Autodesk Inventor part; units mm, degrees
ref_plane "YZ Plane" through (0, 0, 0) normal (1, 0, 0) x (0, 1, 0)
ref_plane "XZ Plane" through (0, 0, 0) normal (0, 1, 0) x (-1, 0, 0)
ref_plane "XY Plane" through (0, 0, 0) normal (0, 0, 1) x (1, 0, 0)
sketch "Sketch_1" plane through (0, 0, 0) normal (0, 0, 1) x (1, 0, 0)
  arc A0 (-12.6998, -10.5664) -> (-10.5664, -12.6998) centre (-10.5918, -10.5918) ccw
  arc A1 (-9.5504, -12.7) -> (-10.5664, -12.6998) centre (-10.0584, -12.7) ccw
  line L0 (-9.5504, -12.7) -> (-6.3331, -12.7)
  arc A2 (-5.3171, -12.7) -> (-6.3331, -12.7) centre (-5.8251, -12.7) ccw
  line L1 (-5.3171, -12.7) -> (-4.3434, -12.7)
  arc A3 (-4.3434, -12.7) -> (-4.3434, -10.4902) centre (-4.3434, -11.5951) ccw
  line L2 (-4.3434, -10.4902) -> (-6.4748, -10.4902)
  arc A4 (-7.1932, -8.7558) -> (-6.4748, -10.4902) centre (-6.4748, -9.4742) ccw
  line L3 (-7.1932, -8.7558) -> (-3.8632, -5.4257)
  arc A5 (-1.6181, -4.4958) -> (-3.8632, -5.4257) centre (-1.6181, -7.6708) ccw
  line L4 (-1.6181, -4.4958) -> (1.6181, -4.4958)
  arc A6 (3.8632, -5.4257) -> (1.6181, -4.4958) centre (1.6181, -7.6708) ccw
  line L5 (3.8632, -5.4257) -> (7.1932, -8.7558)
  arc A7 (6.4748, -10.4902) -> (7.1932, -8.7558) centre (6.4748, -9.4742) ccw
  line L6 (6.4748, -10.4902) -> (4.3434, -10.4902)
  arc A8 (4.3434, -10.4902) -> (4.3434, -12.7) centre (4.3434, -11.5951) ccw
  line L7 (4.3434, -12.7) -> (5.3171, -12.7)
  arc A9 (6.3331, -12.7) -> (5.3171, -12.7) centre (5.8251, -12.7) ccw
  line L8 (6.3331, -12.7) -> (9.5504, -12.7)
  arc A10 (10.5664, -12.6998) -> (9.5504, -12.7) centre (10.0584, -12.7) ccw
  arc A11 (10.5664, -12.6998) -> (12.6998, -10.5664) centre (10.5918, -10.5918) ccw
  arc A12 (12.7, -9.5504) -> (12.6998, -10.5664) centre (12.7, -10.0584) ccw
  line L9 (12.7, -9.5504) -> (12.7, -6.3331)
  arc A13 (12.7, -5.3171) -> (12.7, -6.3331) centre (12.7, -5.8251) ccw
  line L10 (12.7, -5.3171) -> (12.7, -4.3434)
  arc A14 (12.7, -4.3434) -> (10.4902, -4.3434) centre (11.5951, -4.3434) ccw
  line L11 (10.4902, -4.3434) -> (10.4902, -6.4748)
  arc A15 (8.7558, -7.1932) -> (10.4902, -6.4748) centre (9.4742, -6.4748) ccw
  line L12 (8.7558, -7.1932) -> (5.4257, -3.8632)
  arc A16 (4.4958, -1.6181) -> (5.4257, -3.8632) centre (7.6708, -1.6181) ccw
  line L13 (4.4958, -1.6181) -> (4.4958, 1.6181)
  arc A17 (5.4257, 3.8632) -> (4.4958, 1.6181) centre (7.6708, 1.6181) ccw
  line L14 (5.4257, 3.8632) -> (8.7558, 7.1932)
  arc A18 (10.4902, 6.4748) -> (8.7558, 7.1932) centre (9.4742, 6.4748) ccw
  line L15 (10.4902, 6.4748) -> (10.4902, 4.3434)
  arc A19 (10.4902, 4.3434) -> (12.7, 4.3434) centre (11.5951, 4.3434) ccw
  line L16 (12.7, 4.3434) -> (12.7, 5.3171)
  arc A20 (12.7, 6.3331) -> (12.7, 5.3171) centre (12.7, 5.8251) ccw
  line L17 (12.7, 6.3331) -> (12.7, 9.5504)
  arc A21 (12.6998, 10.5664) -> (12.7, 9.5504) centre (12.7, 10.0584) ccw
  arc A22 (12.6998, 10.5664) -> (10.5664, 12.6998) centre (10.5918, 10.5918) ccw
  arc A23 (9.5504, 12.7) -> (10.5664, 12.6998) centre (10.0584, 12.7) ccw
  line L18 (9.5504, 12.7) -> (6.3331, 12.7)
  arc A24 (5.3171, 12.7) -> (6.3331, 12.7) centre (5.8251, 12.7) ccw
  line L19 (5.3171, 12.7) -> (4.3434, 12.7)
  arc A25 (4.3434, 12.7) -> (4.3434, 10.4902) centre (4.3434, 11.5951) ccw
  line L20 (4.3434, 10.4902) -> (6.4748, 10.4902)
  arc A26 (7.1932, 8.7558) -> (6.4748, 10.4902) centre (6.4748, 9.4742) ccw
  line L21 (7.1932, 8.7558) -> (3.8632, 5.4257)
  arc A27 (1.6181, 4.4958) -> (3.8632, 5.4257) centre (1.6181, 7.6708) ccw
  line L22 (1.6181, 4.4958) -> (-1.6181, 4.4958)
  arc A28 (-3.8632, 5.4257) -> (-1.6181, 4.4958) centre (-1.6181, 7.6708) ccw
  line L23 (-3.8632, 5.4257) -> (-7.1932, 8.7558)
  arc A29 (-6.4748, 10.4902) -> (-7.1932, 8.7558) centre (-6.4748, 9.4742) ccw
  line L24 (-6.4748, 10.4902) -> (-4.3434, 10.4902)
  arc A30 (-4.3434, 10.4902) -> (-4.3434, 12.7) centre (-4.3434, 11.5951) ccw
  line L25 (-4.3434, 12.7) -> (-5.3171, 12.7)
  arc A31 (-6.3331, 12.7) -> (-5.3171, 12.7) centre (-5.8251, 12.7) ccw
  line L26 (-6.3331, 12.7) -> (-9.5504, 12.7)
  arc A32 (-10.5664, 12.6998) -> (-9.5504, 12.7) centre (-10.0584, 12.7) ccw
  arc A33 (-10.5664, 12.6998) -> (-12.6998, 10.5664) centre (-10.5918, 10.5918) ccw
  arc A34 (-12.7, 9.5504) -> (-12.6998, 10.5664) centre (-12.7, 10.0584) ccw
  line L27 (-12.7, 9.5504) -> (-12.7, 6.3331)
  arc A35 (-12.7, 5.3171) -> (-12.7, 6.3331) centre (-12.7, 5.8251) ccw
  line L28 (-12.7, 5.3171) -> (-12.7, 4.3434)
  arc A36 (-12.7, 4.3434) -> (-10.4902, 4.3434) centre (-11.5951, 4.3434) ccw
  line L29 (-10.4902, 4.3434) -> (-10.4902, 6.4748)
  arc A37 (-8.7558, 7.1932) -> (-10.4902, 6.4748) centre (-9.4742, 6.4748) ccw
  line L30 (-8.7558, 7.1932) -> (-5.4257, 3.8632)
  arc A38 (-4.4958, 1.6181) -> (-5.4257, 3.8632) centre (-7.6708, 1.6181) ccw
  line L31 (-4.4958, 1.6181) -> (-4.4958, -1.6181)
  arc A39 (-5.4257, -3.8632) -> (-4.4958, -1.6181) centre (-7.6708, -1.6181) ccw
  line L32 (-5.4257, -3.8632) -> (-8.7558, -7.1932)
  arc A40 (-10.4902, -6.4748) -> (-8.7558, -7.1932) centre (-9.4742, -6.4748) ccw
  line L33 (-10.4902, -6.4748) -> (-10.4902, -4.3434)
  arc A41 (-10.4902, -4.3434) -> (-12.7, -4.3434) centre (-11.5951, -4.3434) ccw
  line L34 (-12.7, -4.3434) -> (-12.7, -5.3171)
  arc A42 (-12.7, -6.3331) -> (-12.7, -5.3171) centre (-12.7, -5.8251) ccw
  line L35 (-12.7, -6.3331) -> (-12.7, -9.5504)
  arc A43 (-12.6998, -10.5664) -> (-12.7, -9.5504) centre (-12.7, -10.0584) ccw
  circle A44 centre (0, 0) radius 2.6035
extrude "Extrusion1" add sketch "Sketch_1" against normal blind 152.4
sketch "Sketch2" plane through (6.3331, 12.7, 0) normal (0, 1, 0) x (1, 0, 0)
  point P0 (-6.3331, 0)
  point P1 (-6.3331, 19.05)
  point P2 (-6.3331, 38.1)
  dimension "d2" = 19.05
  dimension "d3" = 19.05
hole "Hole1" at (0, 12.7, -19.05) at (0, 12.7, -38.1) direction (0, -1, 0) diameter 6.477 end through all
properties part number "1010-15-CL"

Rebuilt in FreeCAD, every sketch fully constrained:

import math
import FreeCAD as App
import Part
import Sketcher
from FreeCAD import Vector
Q = App.Units.Quantity

doc = App.newDocument("Part")
body = doc.addObject("PartDesign::Body", "Body")

sketch1 = body.newObject("Sketcher::SketchObject", "Sketch")
sketch1.AttachmentSupport = (doc.getObject("XY_Plane"), [""])
sketch1.MapMode = "FlatFace"
sketch1.addGeometry(Part.ArcOfCircle(Part.Circle(Vector(-12.7, -10.1, 0), Vector(0, 0, 1), 0.5), math.radians(-90), math.radians(90)), False)
sketch1.addGeometry(Part.ArcOfCircle(Part.Circle(Vector(-10.6, -10.6, 0), Vector(0, 0, 1), 2.1), math.radians(179), math.radians(271)), False)
sketch1.addGeometry(Part.ArcOfCircle(Part.Circle(Vector(-10.1, -12.7, 0), Vector(0, 0, 1), 0.5), math.radians(0), math.radians(180)), False)
sketch1.addGeometry(Part.LineSegment(Vector(-9.6, -12.7, 0), Vector(-6.3, -12.7, 0)), False)
sketch1.addGeometry(Part.ArcOfCircle(Part.Circle(Vector(-5.8, -12.7, 0), Vector(0, 0, 1), 0.5), math.radians(0), math.radians(180)), False)
sketch1.addGeometry(Part.LineSegment(Vector(-5.3, -12.7, 0), Vector(-4.3, -12.7, 0)), False)
sketch1.addGeometry(Part.ArcOfCircle(Part.Circle(Vector(-4.3, -11.6, 0), Vector(0, 0, 1), 1.1), math.radians(-90), math.radians(90)), False)
sketch1.addGeometry(Part.LineSegment(Vector(-4.3, -10.5, 0), Vector(-6.5, -10.5, 0)), False)
sketch1.addGeometry(Part.ArcOfCircle(Part.Circle(Vector(-6.5, -9.5, 0), Vector(0, 0, 1), 1), math.radians(135), math.radians(270)), False)
sketch1.addGeometry(Part.LineSegment(Vector(-7.2, -8.8, 0), Vector(-3.9, -5.4, 0)), False)
sketch1.addGeometry(Part.ArcOfCircle(Part.Circle(Vector(-1.6, -7.7, 0), Vector(0, 0, 1), 3.2), math.radians(90), math.radians(135)), False)
sketch1.addGeometry(Part.LineSegment(Vector(-1.6, -4.5, 0), Vector(1.6, -4.5, 0)), False)
sketch1.addGeometry(Part.ArcOfCircle(Part.Circle(Vector(1.6, -7.7, 0), Vector(0, 0, 1), 3.2), math.radians(45), math.radians(90)), False)
sketch1.addGeometry(Part.LineSegment(Vector(3.9, -5.4, 0), Vector(7.2, -8.8, 0)), False)
sketch1.addGeometry(Part.ArcOfCircle(Part.Circle(Vector(6.5, -9.5, 0), Vector(0, 0, 1), 1), math.radians(-90), math.radians(45)), False)
sketch1.addGeometry(Part.LineSegment(Vector(6.5, -10.5, 0), Vector(4.3, -10.5, 0)), False)
sketch1.addGeometry(Part.ArcOfCircle(Part.Circle(Vector(4.3, -11.6, 0), Vector(0, 0, 1), 1.1), math.radians(90), math.radians(270)), False)
sketch1.addGeometry(Part.LineSegment(Vector(4.3, -12.7, 0), Vector(5.3, -12.7, 0)), False)
sketch1.addGeometry(Part.ArcOfCircle(Part.Circle(Vector(5.8, -12.7, 0), Vector(0, 0, 1), 0.5), math.radians(0), math.radians(180)), False)
sketch1.addGeometry(Part.LineSegment(Vector(6.3, -12.7, 0), Vector(9.6, -12.7, 0)), False)
sketch1.addGeometry(Part.ArcOfCircle(Part.Circle(Vector(10.1, -12.7, 0), Vector(0, 0, 1), 0.5), math.radians(0), math.radians(180)), False)
sketch1.addGeometry(Part.ArcOfCircle(Part.Circle(Vector(10.6, -10.6, 0), Vector(0, 0, 1), 2.1), math.radians(-91), math.radians(1)), False)
sketch1.addGeometry(Part.ArcOfCircle(Part.Circle(Vector(12.7, -10.1, 0), Vector(0, 0, 1), 0.5), math.radians(90), math.radians(270)), False)
sketch1.addGeometry(Part.LineSegment(Vector(12.7, -9.6, 0), Vector(12.7, -6.3, 0)), False)
sketch1.addGeometry(Part.ArcOfCircle(Part.Circle(Vector(12.7, -5.8, 0), Vector(0, 0, 1), 0.5), math.radians(90), math.radians(270)), False)
sketch1.addGeometry(Part.LineSegment(Vector(12.7, -5.3, 0), Vector(12.7, -4.3, 0)), False)
sketch1.addGeometry(Part.ArcOfCircle(Part.Circle(Vector(11.6, -4.3, 0), Vector(0, 0, 1), 1.1), math.radians(0), math.radians(180)), False)
sketch1.addGeometry(Part.LineSegment(Vector(10.5, -4.3, 0), Vector(10.5, -6.5, 0)), False)
sketch1.addGeometry(Part.ArcOfCircle(Part.Circle(Vector(9.5, -6.5, 0), Vector(0, 0, 1), 1), math.radians(-135), math.radians(0)), False)
sketch1.addGeometry(Part.LineSegment(Vector(8.8, -7.2, 0), Vector(5.4, -3.9, 0)), False)
sketch1.addGeometry(Part.ArcOfCircle(Part.Circle(Vector(7.7, -1.6, 0), Vector(0, 0, 1), 3.2), math.radians(180), math.radians(225)), False)
sketch1.addGeometry(Part.LineSegment(Vector(4.5, -1.6, 0), Vector(4.5, 1.6, 0)), False)
sketch1.addGeometry(Part.ArcOfCircle(Part.Circle(Vector(7.7, 1.6, 0), Vector(0, 0, 1), 3.2), math.radians(135), math.radians(180)), False)
sketch1.addGeometry(Part.LineSegment(Vector(5.4, 3.9, 0), Vector(8.8, 7.2, 0)), False)
sketch1.addGeometry(Part.ArcOfCircle(Part.Circle(Vector(9.5, 6.5, 0), Vector(0, 0, 1), 1), math.radians(0), math.radians(135)), False)
sketch1.addGeometry(Part.LineSegment(Vector(10.5, 6.5, 0), Vector(10.5, 4.3, 0)), False)
sketch1.addGeometry(Part.ArcOfCircle(Part.Circle(Vector(11.6, 4.3, 0), Vector(0, 0, 1), 1.1), math.radians(180), math.radians(360)), False)
sketch1.addGeometry(Part.LineSegment(Vector(12.7, 4.3, 0), Vector(12.7, 5.3, 0)), False)
sketch1.addGeometry(Part.ArcOfCircle(Part.Circle(Vector(12.7, 5.8, 0), Vector(0, 0, 1), 0.5), math.radians(90), math.radians(270)), False)
sketch1.addGeometry(Part.LineSegment(Vector(12.7, 6.3, 0), Vector(12.7, 9.6, 0)), False)
sketch1.addGeometry(Part.ArcOfCircle(Part.Circle(Vector(12.7, 10.1, 0), Vector(0, 0, 1), 0.5), math.radians(90), math.radians(270)), False)
sketch1.addGeometry(Part.ArcOfCircle(Part.Circle(Vector(10.6, 10.6, 0), Vector(0, 0, 1), 2.1), math.radians(-1), math.radians(91)), False)
sketch1.addGeometry(Part.ArcOfCircle(Part.Circle(Vector(10.1, 12.7, 0), Vector(0, 0, 1), 0.5), math.radians(180), math.radians(360)), False)
sketch1.addGeometry(Part.LineSegment(Vector(9.6, 12.7, 0), Vector(6.3, 12.7, 0)), False)
sketch1.addGeometry(Part.ArcOfCircle(Part.Circle(Vector(5.8, 12.7, 0), Vector(0, 0, 1), 0.5), math.radians(180), math.radians(360)), False)
sketch1.addGeometry(Part.LineSegment(Vector(5.3, 12.7, 0), Vector(4.3, 12.7, 0)), False)
sketch1.addGeometry(Part.ArcOfCircle(Part.Circle(Vector(4.3, 11.6, 0), Vector(0, 0, 1), 1.1), math.radians(90), math.radians(270)), False)
sketch1.addGeometry(Part.LineSegment(Vector(4.3, 10.5, 0), Vector(6.5, 10.5, 0)), False)
sketch1.addGeometry(Part.ArcOfCircle(Part.Circle(Vector(6.5, 9.5, 0), Vector(0, 0, 1), 1), math.radians(-45), math.radians(90)), False)
sketch1.addGeometry(Part.LineSegment(Vector(7.2, 8.8, 0), Vector(3.9, 5.4, 0)), False)
sketch1.addGeometry(Part.ArcOfCircle(Part.Circle(Vector(1.6, 7.7, 0), Vector(0, 0, 1), 3.2), math.radians(-90), math.radians(-45)), False)
sketch1.addGeometry(Part.LineSegment(Vector(1.6, 4.5, 0), Vector(-1.6, 4.5, 0)), False)
sketch1.addGeometry(Part.ArcOfCircle(Part.Circle(Vector(-1.6, 7.7, 0), Vector(0, 0, 1), 3.2), math.radians(-135), math.radians(-90)), False)
sketch1.addGeometry(Part.LineSegment(Vector(-3.9, 5.4, 0), Vector(-7.2, 8.8, 0)), False)
sketch1.addGeometry(Part.ArcOfCircle(Part.Circle(Vector(-6.5, 9.5, 0), Vector(0, 0, 1), 1), math.radians(90), math.radians(225)), False)
sketch1.addGeometry(Part.LineSegment(Vector(-6.5, 10.5, 0), Vector(-4.3, 10.5, 0)), False)
sketch1.addGeometry(Part.ArcOfCircle(Part.Circle(Vector(-4.3, 11.6, 0), Vector(0, 0, 1), 1.1), math.radians(-90), math.radians(90)), False)
sketch1.addGeometry(Part.LineSegment(Vector(-4.3, 12.7, 0), Vector(-5.3, 12.7, 0)), False)
sketch1.addGeometry(Part.ArcOfCircle(Part.Circle(Vector(-5.8, 12.7, 0), Vector(0, 0, 1), 0.5), math.radians(180), math.radians(360)), False)
sketch1.addGeometry(Part.LineSegment(Vector(-6.3, 12.7, 0), Vector(-9.6, 12.7, 0)), False)
sketch1.addGeometry(Part.ArcOfCircle(Part.Circle(Vector(-10.1, 12.7, 0), Vector(0, 0, 1), 0.5), math.radians(-180), math.radians(0)), False)
sketch1.addGeometry(Part.ArcOfCircle(Part.Circle(Vector(-10.6, 10.6, 0), Vector(0, 0, 1), 2.1), math.radians(89), math.radians(181)), False)
sketch1.addGeometry(Part.ArcOfCircle(Part.Circle(Vector(-12.7, 10.1, 0), Vector(0, 0, 1), 0.5), math.radians(-90), math.radians(90)), False)
sketch1.addGeometry(Part.LineSegment(Vector(-12.7, 9.6, 0), Vector(-12.7, 6.3, 0)), False)
sketch1.addGeometry(Part.ArcOfCircle(Part.Circle(Vector(-12.7, 5.8, 0), Vector(0, 0, 1), 0.5), math.radians(-90), math.radians(90)), False)
sketch1.addGeometry(Part.LineSegment(Vector(-12.7, 5.3, 0), Vector(-12.7, 4.3, 0)), False)
sketch1.addGeometry(Part.ArcOfCircle(Part.Circle(Vector(-11.6, 4.3, 0), Vector(0, 0, 1), 1.1), math.radians(180), math.radians(360)), False)
sketch1.addGeometry(Part.LineSegment(Vector(-10.5, 4.3, 0), Vector(-10.5, 6.5, 0)), False)
sketch1.addGeometry(Part.ArcOfCircle(Part.Circle(Vector(-9.5, 6.5, 0), Vector(0, 0, 1), 1), math.radians(45), math.radians(180)), False)
sketch1.addGeometry(Part.LineSegment(Vector(-8.8, 7.2, 0), Vector(-5.4, 3.9, 0)), False)
sketch1.addGeometry(Part.ArcOfCircle(Part.Circle(Vector(-7.7, 1.6, 0), Vector(0, 0, 1), 3.2), math.radians(0), math.radians(45)), False)
sketch1.addGeometry(Part.LineSegment(Vector(-4.5, 1.6, 0), Vector(-4.5, -1.6, 0)), False)
sketch1.addGeometry(Part.ArcOfCircle(Part.Circle(Vector(-7.7, -1.6, 0), Vector(0, 0, 1), 3.2), math.radians(-45), math.radians(0)), False)
sketch1.addGeometry(Part.LineSegment(Vector(-5.4, -3.9, 0), Vector(-8.8, -7.2, 0)), False)
sketch1.addGeometry(Part.ArcOfCircle(Part.Circle(Vector(-9.5, -6.5, 0), Vector(0, 0, 1), 1), math.radians(180), math.radians(315)), False)
sketch1.addGeometry(Part.LineSegment(Vector(-10.5, -6.5, 0), Vector(-10.5, -4.3, 0)), False)
sketch1.addGeometry(Part.ArcOfCircle(Part.Circle(Vector(-11.6, -4.3, 0), Vector(0, 0, 1), 1.1), math.radians(0), math.radians(180)), False)
sketch1.addGeometry(Part.LineSegment(Vector(-12.7, -4.3, 0), Vector(-12.7, -5.3, 0)), False)
sketch1.addGeometry(Part.ArcOfCircle(Part.Circle(Vector(-12.7, -5.8, 0), Vector(0, 0, 1), 0.5), math.radians(-90), math.radians(90)), False)
sketch1.addGeometry(Part.LineSegment(Vector(-12.7, -6.3, 0), Vector(-12.7, -9.6, 0)), False)
sketch1.addGeometry(Part.Circle(Vector(0, 0, 0), Vector(0, 0, 1), 2.6), False)
sketch1.addConstraint(Sketcher.Constraint("Coincident", 0, 1, 1, 1))
sketch1.addConstraint(Sketcher.Constraint("Coincident", 1, 2, 2, 2))
sketch1.addConstraint(Sketcher.Constraint("Coincident", 2, 1, 3, 1))
sketch1.addConstraint(Sketcher.Constraint("Coincident", 3, 2, 4, 2))
sketch1.addConstraint(Sketcher.Constraint("Coincident", 4, 1, 5, 1))
sketch1.addConstraint(Sketcher.Constraint("Tangent", 5, 2, 6, 1))
sketch1.addConstraint(Sketcher.Constraint("Tangent", 6, 2, 7, 1))
sketch1.addConstraint(Sketcher.Constraint("Tangent", 7, 2, 8, 2))
sketch1.addConstraint(Sketcher.Constraint("Tangent", 8, 1, 9, 1))
sketch1.addConstraint(Sketcher.Constraint("Tangent", 9, 2, 10, 2))
sketch1.addConstraint(Sketcher.Constraint("Tangent", 10, 1, 11, 1))
sketch1.addConstraint(Sketcher.Constraint("Tangent", 11, 2, 12, 2))
sketch1.addConstraint(Sketcher.Constraint("Tangent", 12, 1, 13, 1))
sketch1.addConstraint(Sketcher.Constraint("Tangent", 13, 2, 14, 2))
sketch1.addConstraint(Sketcher.Constraint("Tangent", 14, 1, 15, 1))
sketch1.addConstraint(Sketcher.Constraint("Tangent", 15, 2, 16, 1))
sketch1.addConstraint(Sketcher.Constraint("Tangent", 16, 2, 17, 1))
sketch1.addConstraint(Sketcher.Constraint("Coincident", 17, 2, 18, 2))
sketch1.addConstraint(Sketcher.Constraint("Coincident", 18, 1, 19, 1))
sketch1.addConstraint(Sketcher.Constraint("Coincident", 19, 2, 20, 2))
sketch1.addConstraint(Sketcher.Constraint("Coincident", 20, 1, 21, 1))
sketch1.addConstraint(Sketcher.Constraint("Coincident", 21, 2, 22, 2))
sketch1.addConstraint(Sketcher.Constraint("Coincident", 22, 1, 23, 1))
sketch1.addConstraint(Sketcher.Constraint("Coincident", 23, 2, 24, 2))
sketch1.addConstraint(Sketcher.Constraint("Coincident", 24, 1, 25, 1))
sketch1.addConstraint(Sketcher.Constraint("Tangent", 25, 2, 26, 1))
sketch1.addConstraint(Sketcher.Constraint("Tangent", 26, 2, 27, 1))
sketch1.addConstraint(Sketcher.Constraint("Tangent", 27, 2, 28, 2))
sketch1.addConstraint(Sketcher.Constraint("Tangent", 28, 1, 29, 1))
sketch1.addConstraint(Sketcher.Constraint("Tangent", 29, 2, 30, 2))
sketch1.addConstraint(Sketcher.Constraint("Tangent", 30, 1, 31, 1))
sketch1.addConstraint(Sketcher.Constraint("Tangent", 31, 2, 32, 2))
sketch1.addConstraint(Sketcher.Constraint("Tangent", 32, 1, 33, 1))
sketch1.addConstraint(Sketcher.Constraint("Tangent", 33, 2, 34, 2))
sketch1.addConstraint(Sketcher.Constraint("Tangent", 34, 1, 35, 1))
sketch1.addConstraint(Sketcher.Constraint("Tangent", 35, 2, 36, 1))
sketch1.addConstraint(Sketcher.Constraint("Tangent", 36, 2, 37, 1))
sketch1.addConstraint(Sketcher.Constraint("Coincident", 37, 2, 38, 2))
sketch1.addConstraint(Sketcher.Constraint("Coincident", 38, 1, 39, 1))
sketch1.addConstraint(Sketcher.Constraint("Coincident", 39, 2, 40, 2))
sketch1.addConstraint(Sketcher.Constraint("Coincident", 40, 1, 41, 1))
sketch1.addConstraint(Sketcher.Constraint("Coincident", 41, 2, 42, 2))
sketch1.addConstraint(Sketcher.Constraint("Coincident", 42, 1, 43, 1))
sketch1.addConstraint(Sketcher.Constraint("Coincident", 43, 2, 44, 2))
sketch1.addConstraint(Sketcher.Constraint("Coincident", 44, 1, 45, 1))
sketch1.addConstraint(Sketcher.Constraint("Tangent", 45, 2, 46, 1))
sketch1.addConstraint(Sketcher.Constraint("Tangent", 46, 2, 47, 1))
sketch1.addConstraint(Sketcher.Constraint("Tangent", 47, 2, 48, 2))
sketch1.addConstraint(Sketcher.Constraint("Tangent", 48, 1, 49, 1))
sketch1.addConstraint(Sketcher.Constraint("Tangent", 49, 2, 50, 2))
sketch1.addConstraint(Sketcher.Constraint("Tangent", 50, 1, 51, 1))
sketch1.addConstraint(Sketcher.Constraint("Tangent", 51, 2, 52, 2))
sketch1.addConstraint(Sketcher.Constraint("Tangent", 52, 1, 53, 1))
sketch1.addConstraint(Sketcher.Constraint("Tangent", 53, 2, 54, 2))
sketch1.addConstraint(Sketcher.Constraint("Tangent", 54, 1, 55, 1))
sketch1.addConstraint(Sketcher.Constraint("Tangent", 55, 2, 56, 1))
sketch1.addConstraint(Sketcher.Constraint("Tangent", 56, 2, 57, 1))
sketch1.addConstraint(Sketcher.Constraint("Coincident", 57, 2, 58, 2))
sketch1.addConstraint(Sketcher.Constraint("Coincident", 58, 1, 59, 1))
sketch1.addConstraint(Sketcher.Constraint("Coincident", 59, 2, 60, 2))
sketch1.addConstraint(Sketcher.Constraint("Coincident", 60, 1, 61, 1))
sketch1.addConstraint(Sketcher.Constraint("Coincident", 61, 2, 62, 2))
sketch1.addConstraint(Sketcher.Constraint("Coincident", 62, 1, 63, 1))
sketch1.addConstraint(Sketcher.Constraint("Coincident", 63, 2, 64, 2))
sketch1.addConstraint(Sketcher.Constraint("Coincident", 64, 1, 65, 1))
sketch1.addConstraint(Sketcher.Constraint("Tangent", 65, 2, 66, 1))
sketch1.addConstraint(Sketcher.Constraint("Tangent", 66, 2, 67, 1))
sketch1.addConstraint(Sketcher.Constraint("Tangent", 67, 2, 68, 2))
sketch1.addConstraint(Sketcher.Constraint("Tangent", 68, 1, 69, 1))
sketch1.addConstraint(Sketcher.Constraint("Tangent", 69, 2, 70, 2))
sketch1.addConstraint(Sketcher.Constraint("Tangent", 70, 1, 71, 1))
sketch1.addConstraint(Sketcher.Constraint("Tangent", 71, 2, 72, 2))
sketch1.addConstraint(Sketcher.Constraint("Tangent", 72, 1, 73, 1))
sketch1.addConstraint(Sketcher.Constraint("Tangent", 73, 2, 74, 2))
sketch1.addConstraint(Sketcher.Constraint("Tangent", 74, 1, 75, 1))
sketch1.addConstraint(Sketcher.Constraint("Tangent", 75, 2, 76, 1))
sketch1.addConstraint(Sketcher.Constraint("Tangent", 76, 2, 77, 1))
sketch1.addConstraint(Sketcher.Constraint("Coincident", 77, 2, 78, 2))
sketch1.addConstraint(Sketcher.Constraint("Coincident", 78, 1, 79, 1))
sketch1.addConstraint(Sketcher.Constraint("Coincident", 79, 2, 0, 2))
sketch1.addConstraint(Sketcher.Constraint("Horizontal", 3))
sketch1.addConstraint(Sketcher.Constraint("Horizontal", 5))
sketch1.addConstraint(Sketcher.Constraint("Horizontal", 7))
sketch1.addConstraint(Sketcher.Constraint("Horizontal", 11))
sketch1.addConstraint(Sketcher.Constraint("Horizontal", 15))
sketch1.addConstraint(Sketcher.Constraint("Horizontal", 17))
sketch1.addConstraint(Sketcher.Constraint("Horizontal", 19))
sketch1.addConstraint(Sketcher.Constraint("Vertical", 23))
sketch1.addConstraint(Sketcher.Constraint("Vertical", 25))
sketch1.addConstraint(Sketcher.Constraint("Vertical", 27))
sketch1.addConstraint(Sketcher.Constraint("Vertical", 31))
sketch1.addConstraint(Sketcher.Constraint("Vertical", 35))
sketch1.addConstraint(Sketcher.Constraint("Vertical", 37))
sketch1.addConstraint(Sketcher.Constraint("Vertical", 39))
sketch1.addConstraint(Sketcher.Constraint("Horizontal", 43))
sketch1.addConstraint(Sketcher.Constraint("Horizontal", 45))
sketch1.addConstraint(Sketcher.Constraint("Horizontal", 47))
sketch1.addConstraint(Sketcher.Constraint("Horizontal", 51))
sketch1.addConstraint(Sketcher.Constraint("Horizontal", 55))
sketch1.addConstraint(Sketcher.Constraint("Horizontal", 57))
sketch1.addConstraint(Sketcher.Constraint("Horizontal", 59))
sketch1.addConstraint(Sketcher.Constraint("Vertical", 63))
sketch1.addConstraint(Sketcher.Constraint("Vertical", 65))
sketch1.addConstraint(Sketcher.Constraint("Vertical", 67))
sketch1.addConstraint(Sketcher.Constraint("Vertical", 71))
sketch1.addConstraint(Sketcher.Constraint("Vertical", 75))
sketch1.addConstraint(Sketcher.Constraint("Vertical", 77))
sketch1.addConstraint(Sketcher.Constraint("Vertical", 79))
sketch1.addConstraint(Sketcher.Constraint("Coincident", 80, 3, -1, 1))
sketch1.addConstraint(Sketcher.Constraint("Equal", 0, 2))
sketch1.addConstraint(Sketcher.Constraint("Equal", 2, 4))
sketch1.addConstraint(Sketcher.Constraint("Equal", 10, 12))
sketch1.addConstraint(Sketcher.Constraint("Equal", 8, 14))
sketch1.addConstraint(Sketcher.Constraint("Equal", 6, 16))
sketch1.addConstraint(Sketcher.Constraint("Equal", 4, 18))
sketch1.addConstraint(Sketcher.Constraint("Equal", 18, 20))
sketch1.addConstraint(Sketcher.Constraint("Equal", 1, 21))
sketch1.addConstraint(Sketcher.Constraint("Equal", 20, 22))
sketch1.addConstraint(Sketcher.Constraint("Equal", 22, 24))
sketch1.addConstraint(Sketcher.Constraint("Equal", 16, 26))
sketch1.addConstraint(Sketcher.Constraint("Equal", 14, 28))
sketch1.addConstraint(Sketcher.Constraint("Equal", 12, 30))
sketch1.addConstraint(Sketcher.Constraint("Equal", 30, 32))
sketch1.addConstraint(Sketcher.Constraint("Equal", 28, 34))
sketch1.addConstraint(Sketcher.Constraint("Equal", 26, 36))
sketch1.addConstraint(Sketcher.Constraint("Equal", 24, 38))
sketch1.addConstraint(Sketcher.Constraint("Equal", 38, 40))
sketch1.addConstraint(Sketcher.Constraint("Equal", 21, 41))
sketch1.addConstraint(Sketcher.Constraint("Equal", 40, 42))
sketch1.addConstraint(Sketcher.Constraint("Equal", 42, 44))
sketch1.addConstraint(Sketcher.Constraint("Equal", 36, 46))
sketch1.addConstraint(Sketcher.Constraint("Equal", 34, 48))
sketch1.addConstraint(Sketcher.Constraint("Equal", 32, 50))
sketch1.addConstraint(Sketcher.Constraint("Equal", 50, 52))
sketch1.addConstraint(Sketcher.Constraint("Equal", 48, 54))
sketch1.addConstraint(Sketcher.Constraint("Equal", 46, 56))
sketch1.addConstraint(Sketcher.Constraint("Equal", 44, 58))
sketch1.addConstraint(Sketcher.Constraint("Equal", 58, 60))
sketch1.addConstraint(Sketcher.Constraint("Equal", 41, 61))
sketch1.addConstraint(Sketcher.Constraint("Equal", 60, 62))
sketch1.addConstraint(Sketcher.Constraint("Equal", 62, 64))
sketch1.addConstraint(Sketcher.Constraint("Equal", 56, 66))
sketch1.addConstraint(Sketcher.Constraint("Equal", 54, 68))
sketch1.addConstraint(Sketcher.Constraint("Equal", 52, 70))
sketch1.addConstraint(Sketcher.Constraint("Equal", 70, 72))
sketch1.addConstraint(Sketcher.Constraint("Equal", 68, 74))
sketch1.addConstraint(Sketcher.Constraint("Equal", 66, 76))
sketch1.addConstraint(Sketcher.Constraint("Equal", 64, 78))
sketch1.addConstraint(Sketcher.Constraint("Symmetric", 0, 3, 40, 3, -1, 1))
sketch1.addConstraint(Sketcher.Constraint("Symmetric", 1, 3, 41, 3, -1, 1))
sketch1.addConstraint(Sketcher.Constraint("Symmetric", 2, 3, 42, 3, -1, 1))
sketch1.addConstraint(Sketcher.Constraint("Symmetric", 4, 3, 44, 3, -1, 1))
sketch1.addConstraint(Sketcher.Constraint("Symmetric", 6, 3, 46, 3, -1, 1))
sketch1.addConstraint(Sketcher.Constraint("Symmetric", 10, 3, 50, 3, -1, 1))
sketch1.addConstraint(Sketcher.Constraint("Symmetric", 14, 3, 54, 3, -1, 1))
sketch1.addConstraint(Sketcher.Constraint("Symmetric", 18, 3, 58, 3, -1, 1))
sketch1.addConstraint(Sketcher.Constraint("Symmetric", 20, 3, 60, 3, -1, 1))
sketch1.addConstraint(Sketcher.Constraint("Symmetric", 21, 3, 61, 3, -1, 1))
sketch1.addConstraint(Sketcher.Constraint("Symmetric", 22, 3, 62, 3, -1, 1))
sketch1.addConstraint(Sketcher.Constraint("Symmetric", 24, 3, 64, 3, -1, 1))
sketch1.addConstraint(Sketcher.Constraint("Symmetric", 26, 3, 66, 3, -1, 1))
sketch1.addConstraint(Sketcher.Constraint("Symmetric", 30, 3, 70, 3, -1, 1))
sketch1.addConstraint(Sketcher.Constraint("Symmetric", 34, 3, 74, 3, -1, 1))
sketch1.addConstraint(Sketcher.Constraint("Symmetric", 38, 3, 78, 3, -1, 1))
sketch1.addConstraint(Sketcher.Constraint("Symmetric", 8, 3, 14, 3, -2))
sketch1.addConstraint(Sketcher.Constraint("Symmetric", 4, 3, 18, 3, -2))
sketch1.addConstraint(Sketcher.Constraint("Symmetric", 2, 3, 20, 3, -2))
sketch1.addConstraint(Sketcher.Constraint("Symmetric", 1, 3, 21, 3, -2))
sketch1.addConstraint(Sketcher.Constraint("Symmetric", 0, 3, 22, 3, -2))
sketch1.addConstraint(Sketcher.Constraint("Symmetric", 38, 3, 64, 3, -2))
sketch1.addConstraint(Sketcher.Constraint("Symmetric", 36, 3, 66, 3, -2))
sketch1.addConstraint(Sketcher.Constraint("Symmetric", 49, 2, 52, 1, -2))
sketch1.addConstraint(Sketcher.Constraint("Symmetric", 33, 2, 68, 1, -2))
sketch1.addConstraint(Sketcher.Constraint("Symmetric", 29, 2, 72, 1, -2))
sketch1.addConstraint(Sketcher.Constraint("Perpendicular", 9, 13))
sketch1.addConstraint(Sketcher.Constraint("Parallel", 13, 29))
sketch1.addConstraint(Sketcher.Constraint("Perpendicular", 29, 33))
sketch1.addConstraint(Sketcher.Constraint("Horizontal", 2, 3, 4, 3))
sketch1.addConstraint(Sketcher.Constraint("Horizontal", 26, 3, 76, 3))
sketch1.addConstraint(Sketcher.Constraint("Horizontal", 20, 3, 1, 2))
sketch1.addConstraint(Sketcher.Constraint("Horizontal", 1, 2, 2, 1))
sketch1.addConstraint(Sketcher.Constraint("Horizontal", 3, 2, 4, 1))
sketch1.addConstraint(Sketcher.Constraint("Horizontal", 17, 2, 18, 1))
sketch1.addConstraint(Sketcher.Constraint("Horizontal", 41, 2, 42, 1))
sketch1.addConstraint(Sketcher.Constraint("Horizontal", 57, 2, 58, 1))
sketch1.addConstraint(Sketcher.Constraint("Vertical", 22, 3, 24, 3))
sketch1.addConstraint(Sketcher.Constraint("Vertical", 16, 3, 46, 3))
sketch1.addConstraint(Sketcher.Constraint("Vertical", 6, 3, 56, 3))
sketch1.addConstraint(Sketcher.Constraint("Vertical", 78, 3, 0, 1))
sketch1.addConstraint(Sketcher.Constraint("Vertical", 21, 2, 22, 1))
sketch1.addConstraint(Sketcher.Constraint("Vertical", 23, 2, 24, 1))
sketch1.addConstraint(Sketcher.Constraint("Vertical", 37, 2, 38, 1))
sketch1.addConstraint(Sketcher.Constraint("Vertical", 61, 2, 62, 1))
sketch1.addConstraint(Sketcher.Constraint("Vertical", 77, 2, 78, 1))
sketch1.addConstraint(Sketcher.Constraint("Equal", 59, 23))
sketch1.addConstraint(Sketcher.Constraint("Equal", 57, 25))
sketch1.addConstraint(Sketcher.Constraint("Equal", 55, 27))
sketch1.addConstraint(Sketcher.Constraint("Equal", 51, 31))
sketch1.addConstraint(Sketcher.Constraint("Equal", 13, 29))
sketch1.addConstraint(Sketcher.Constraint("Radius", 0, Q("0.02 in")))
sketch1.addConstraint(Sketcher.Constraint("Radius", 8, Q("0.04 in")))
sketch1.addConstraint(Sketcher.Constraint("Diameter", 80, Q("0.205 in")))
sketch1.addConstraint(Sketcher.Constraint("Radius", 1, Q("0.083 in")))
sketch1.addConstraint(Sketcher.Constraint("Radius", 10, Q("0.125 in")))
sketch1.addConstraint(Sketcher.Constraint("DistanceX", 0, 3, -1, 1, Q("0.5 in")))
sketch1.addConstraint(Sketcher.Constraint("DistanceY", 2, 3, -1, 1, Q("0.5 in")))
sketch1.addConstraint(Sketcher.Constraint("Radius", 6, Q("0.0435 in")))
sketch1.addConstraint(Sketcher.Constraint("DistanceX", 11, 1, 11, 2, Q("0.1274 in")))
sketch1.addConstraint(Sketcher.Constraint("DistanceY", 0, 3, -1, 1, Q("0.396 in")))
sketch1.addConstraint(Sketcher.Constraint("DistanceX", 6, 3, -1, 1, Q("0.171 in")))
sketch1.addConstraint(Sketcher.Constraint("DistanceY", 10, 3, -1, 1, Q("0.302 in")))
sketch1.addConstraint(Sketcher.Constraint("DistanceX", 3, 1, 3, 2, Q("3.2173 mm")))
pad1 = body.newObject("PartDesign::Pad", "Pad")
pad1.Profile = sketch1
pad1.Length = Q("6 in")
pad1.Reversed = True

sketch2 = body.newObject("Sketcher::SketchObject", "Sketch001")
sketch2.AttachmentSupport = (doc.getObject("XZ_Plane"), [""])
sketch2.MapMode = "FlatFace"
sketch2.AttachmentOffset = App.Placement(Vector(0, 0, -0.5 * 25.4), App.Rotation())
sketch2.addGeometry(Part.Circle(Vector(0, -19.1, 0), Vector(0, 0, 1), 3.2), False)
sketch2.addGeometry(Part.Circle(Vector(0, -38.1, 0), Vector(0, 0, 1), 3.2), False)
sketch2.addConstraint(Sketcher.Constraint("Equal", 0, 1))
sketch2.addConstraint(Sketcher.Constraint("PointOnObject", 0, 3, -2))
sketch2.addConstraint(Sketcher.Constraint("PointOnObject", 1, 3, -2))
sketch2.addConstraint(Sketcher.Constraint("Diameter", 0, Q("0.255 in")))
sketch2.addConstraint(Sketcher.Constraint("DistanceY", 1, 3, -1, 1, Q("1.5 in")))
sketch2.addConstraint(Sketcher.Constraint("DistanceY", 0, 3, -1, 1, Q("0.75 in")))
doc.recompute()
hole = body.newObject("PartDesign::Hole", "Hole")
hole.Profile = sketch2
hole.ThreadType = "None"
hole.Diameter = Q("0.255 in")
hole.DepthType = "ThroughAll"
hole.Reversed = True

doc.recompute()
